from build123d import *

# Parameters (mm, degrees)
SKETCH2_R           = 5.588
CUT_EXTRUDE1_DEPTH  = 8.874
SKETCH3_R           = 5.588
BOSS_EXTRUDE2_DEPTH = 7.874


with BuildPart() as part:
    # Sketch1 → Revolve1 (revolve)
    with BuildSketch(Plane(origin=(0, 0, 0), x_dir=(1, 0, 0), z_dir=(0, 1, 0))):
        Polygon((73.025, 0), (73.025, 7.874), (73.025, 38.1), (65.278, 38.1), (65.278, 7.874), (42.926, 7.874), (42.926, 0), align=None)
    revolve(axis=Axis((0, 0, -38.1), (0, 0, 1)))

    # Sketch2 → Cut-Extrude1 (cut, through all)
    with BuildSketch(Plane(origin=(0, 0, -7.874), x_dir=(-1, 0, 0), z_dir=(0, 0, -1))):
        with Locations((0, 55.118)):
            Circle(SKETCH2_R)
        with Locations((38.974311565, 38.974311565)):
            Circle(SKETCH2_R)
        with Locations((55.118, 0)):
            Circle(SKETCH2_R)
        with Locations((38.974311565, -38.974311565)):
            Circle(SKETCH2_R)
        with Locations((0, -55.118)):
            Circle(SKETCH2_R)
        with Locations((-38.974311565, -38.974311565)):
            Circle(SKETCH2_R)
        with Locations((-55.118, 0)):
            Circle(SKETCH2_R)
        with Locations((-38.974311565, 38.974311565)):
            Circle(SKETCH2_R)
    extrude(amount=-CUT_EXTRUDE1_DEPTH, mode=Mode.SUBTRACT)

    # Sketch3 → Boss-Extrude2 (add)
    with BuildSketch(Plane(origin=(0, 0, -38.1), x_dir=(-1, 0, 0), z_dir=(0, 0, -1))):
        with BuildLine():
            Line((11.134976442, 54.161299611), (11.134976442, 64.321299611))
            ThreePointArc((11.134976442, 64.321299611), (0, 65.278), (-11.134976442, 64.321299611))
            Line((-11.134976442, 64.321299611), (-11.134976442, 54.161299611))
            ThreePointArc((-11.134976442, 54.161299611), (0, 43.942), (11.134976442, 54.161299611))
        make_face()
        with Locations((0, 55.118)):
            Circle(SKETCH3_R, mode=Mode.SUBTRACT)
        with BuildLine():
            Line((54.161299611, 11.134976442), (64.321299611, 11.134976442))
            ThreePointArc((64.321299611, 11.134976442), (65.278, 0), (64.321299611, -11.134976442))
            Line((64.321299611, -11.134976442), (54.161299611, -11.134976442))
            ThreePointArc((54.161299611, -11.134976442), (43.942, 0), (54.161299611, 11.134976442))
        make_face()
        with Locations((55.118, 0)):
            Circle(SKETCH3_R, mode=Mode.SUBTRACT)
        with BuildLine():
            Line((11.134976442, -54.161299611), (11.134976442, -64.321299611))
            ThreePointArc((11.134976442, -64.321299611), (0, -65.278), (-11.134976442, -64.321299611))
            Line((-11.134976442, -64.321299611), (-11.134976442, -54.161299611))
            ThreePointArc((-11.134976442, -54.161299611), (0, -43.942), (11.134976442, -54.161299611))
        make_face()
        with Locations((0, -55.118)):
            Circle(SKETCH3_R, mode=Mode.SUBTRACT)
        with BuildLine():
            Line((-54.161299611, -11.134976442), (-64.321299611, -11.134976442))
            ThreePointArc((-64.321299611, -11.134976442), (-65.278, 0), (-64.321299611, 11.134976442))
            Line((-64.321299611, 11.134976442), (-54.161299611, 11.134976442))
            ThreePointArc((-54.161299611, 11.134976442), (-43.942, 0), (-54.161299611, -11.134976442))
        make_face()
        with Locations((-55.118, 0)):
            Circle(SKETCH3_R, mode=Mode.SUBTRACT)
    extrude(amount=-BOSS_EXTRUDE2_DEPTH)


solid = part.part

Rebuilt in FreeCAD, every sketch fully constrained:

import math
import FreeCAD as App
import Part
import Sketcher

V = App.Vector
Q = App.Units.Quantity


def add_polygon(sketch, points):
    """Adds a closed chain of lines whose ends are joined by coincident constraints."""
    first, n = sketch.GeometryCount, len(points)
    for a, b in zip(points, points[1:] + points[:1]):
        sketch.addGeometry(Part.LineSegment(App.Vector(*a, 0), App.Vector(*b, 0)), False)
    for i in range(n):
        sketch.addConstraint(Sketcher.Constraint("Coincident", first + i, 2, first + (i + 1) % n, 1))

doc = App.newDocument("Part")
body = doc.addObject("PartDesign::Body", "Body")

sketch1 = body.newObject("Sketcher::SketchObject", "Sketch")
sketch1.AttachmentSupport = (doc.getObject("XZ_Plane"), [""])
sketch1.MapMode = "FlatFace"
add_polygon(sketch1, [(73, 0), (73, -38), (65, -38), (65, -8), (43, -8), (43, 0)])
sketch1.addConstraint([
    Sketcher.Constraint("Vertical", 0),
    Sketcher.Constraint("Horizontal", 1),
    Sketcher.Constraint("Vertical", 2),
    Sketcher.Constraint("Horizontal", 3),
    Sketcher.Constraint("Vertical", 4),
    Sketcher.Constraint("Horizontal", 5),
    Sketcher.Constraint("PointOnObject", 4, 2, -1),
    Sketcher.Constraint("DistanceY", 0, 2, 0, 1, Q("1.5 in")),
    Sketcher.Constraint("DistanceX", 3, 2, 3, 1, Q("0.88 in")),
    Sketcher.Constraint("DistanceY", 2, 1, 2, 2, Q("1.19 in")),
    Sketcher.Constraint("DistanceX", 1, 2, 1, 1, Q("0.305 in")),
    Sketcher.Constraint("DistanceX", -1, 1, 1, 2, Q("2.57 in")),
])
revolution = body.newObject("PartDesign::Revolution", "Revolution")
revolution.Profile = sketch1
revolution.ReferenceAxis = (sketch1, ["V_Axis"])
revolution.Angle = 360

sketch2 = body.newObject("Sketcher::SketchObject", "Sketch001")
sketch2.AttachmentSupport = (doc.getObject("XY_Plane"), [""])
sketch2.MapMode = "FlatFace"
sketch2.AttachmentOffset = App.Placement(V(0, 0, -0.31 * 25.4), App.Rotation())
sketch2.addGeometry([
    Part.Circle(V(0, 55, 0), V(0, 0, 1), 6),
    Part.Circle(V(-39, 39, 0), V(0, 0, 1), 6),
    Part.Circle(V(-55, 0, 0), V(0, 0, 1), 6),
    Part.Circle(V(-39, -39, 0), V(0, 0, 1), 6),
    Part.Circle(V(0, -55, 0), V(0, 0, 1), 6),
    Part.Circle(V(39, -39, 0), V(0, 0, 1), 6),
    Part.Circle(V(55, 0, 0), V(0, 0, 1), 6),
    Part.Circle(V(39, 39, 0), V(0, 0, 1), 6),
], False)
sketch2.addConstraint([
    Sketcher.Constraint("Equal", 0, 1),
    Sketcher.Constraint("Equal", 1, 2),
    Sketcher.Constraint("Equal", 2, 3),
    Sketcher.Constraint("Equal", 3, 4),
    Sketcher.Constraint("Equal", 4, 5),
    Sketcher.Constraint("Equal", 5, 6),
    Sketcher.Constraint("Equal", 6, 7),
    Sketcher.Constraint("Symmetric", 0, 3, 4, 3, -1, 1),
    Sketcher.Constraint("Symmetric", 1, 3, 5, 3, -1, 1),
    Sketcher.Constraint("Symmetric", 2, 3, 6, 3, -1, 1),
    Sketcher.Constraint("Symmetric", 3, 3, 7, 3, -1, 1),
    Sketcher.Constraint("Symmetric", 3, 3, 5, 3, -2),
    Sketcher.Constraint("PointOnObject", 0, 3, -2),
    Sketcher.Constraint("PointOnObject", 2, 3, -1),
    Sketcher.Constraint("Diameter", 0, Q("0.44 in")),
    Sketcher.Constraint("DistanceY", -1, 1, 0, 3, Q("2.17 in")),
    Sketcher.Constraint("DistanceX", 2, 3, -1, 1, Q("2.17 in")),
    Sketcher.Constraint("DistanceX", 1, 3, -1, 1, Q("38.974312 mm")),
    Sketcher.Constraint("DistanceY", -1, 1, 1, 3, Q("38.974312 mm")),
])
pocket1 = body.newObject("PartDesign::Pocket", "Pocket")
pocket1.Profile = sketch2
pocket1.Type = "ThroughAll"
pocket1.Reversed = True

sketch3 = body.newObject("Sketcher::SketchObject", "Sketch002")
sketch3.AttachmentSupport = (doc.getObject("XY_Plane"), [""])
sketch3.MapMode = "FlatFace"
sketch3.AttachmentOffset = App.Placement(V(0, 0, -1.5 * 25.4), App.Rotation())
sketch3.addGeometry([
    Part.LineSegment(V(-11, 54, 0), V(-11, 64, 0)),
    Part.ArcOfCircle(Part.Circle(V(0, 0, 0), V(0, 0, 1), 65), math.radians(80.18), math.radians(99.82)),
    Part.LineSegment(V(11, 64, 0), V(11, 54, 0)),
    Part.ArcOfCircle(Part.Circle(V(0, 55, 0), V(0, 0, 1), 11), math.radians(-175), math.radians(-5)),
    Part.Circle(V(0, 55, 0), V(0, 0, 1), 6),
    Part.LineSegment(V(-64, 11, 0), V(-54, 11, 0)),
    Part.ArcOfCircle(Part.Circle(V(-55, 0, 0), V(0, 0, 1), 11), math.radians(-85), math.radians(85)),
    Part.LineSegment(V(-54, -11, 0), V(-64, -11, 0)),
    Part.ArcOfCircle(Part.Circle(V(0, 0, 0), V(0, 0, 1), 65), math.radians(170.18), math.radians(189.82)),
    Part.Circle(V(-55, 0, 0), V(0, 0, 1), 6),
    Part.LineSegment(V(-11, -64, 0), V(-11, -54, 0)),
    Part.ArcOfCircle(Part.Circle(V(0, -55, 0), V(0, 0, 1), 11), math.radians(5), math.radians(175)),
    Part.LineSegment(V(11, -54, 0), V(11, -64, 0)),
    Part.ArcOfCircle(Part.Circle(V(0, 0, 0), V(0, 0, 1), 65), math.radians(-99.82), math.radians(-80.18)),
    Part.Circle(V(0, -55, 0), V(0, 0, 1), 6),
    Part.LineSegment(V(64, -11, 0), V(54, -11, 0)),
    Part.ArcOfCircle(Part.Circle(V(55, 0, 0), V(0, 0, 1), 11), math.radians(95), math.radians(265)),
    Part.LineSegment(V(54, 11, 0), V(64, 11, 0)),
    Part.ArcOfCircle(Part.Circle(V(0, 0, 0), V(0, 0, 1), 65), math.radians(-9.82), math.radians(9.82)),
    Part.Circle(V(55, 0, 0), V(0, 0, 1), 6),
], False)
sketch3.addConstraint([
    Sketcher.Constraint("Coincident", 0, 2, 1, 2),
    Sketcher.Constraint("Coincident", 1, 1, 2, 1),
    Sketcher.Constraint("Coincident", 2, 2, 3, 2),
    Sketcher.Constraint("Coincident", 3, 1, 0, 1),
    Sketcher.Constraint("Coincident", 5, 2, 6, 2),
    Sketcher.Constraint("Coincident", 6, 1, 7, 1),
    Sketcher.Constraint("Coincident", 7, 2, 8, 2),
    Sketcher.Constraint("Coincident", 8, 1, 5, 1),
    Sketcher.Constraint("Coincident", 10, 2, 11, 2),
    Sketcher.Constraint("Coincident", 11, 1, 12, 1),
    Sketcher.Constraint("Coincident", 12, 2, 13, 2),
    Sketcher.Constraint("Coincident", 13, 1, 10, 1),
    Sketcher.Constraint("Coincident", 15, 2, 16, 2),
    Sketcher.Constraint("Coincident", 16, 1, 17, 1),
    Sketcher.Constraint("Coincident", 17, 2, 18, 2),
    Sketcher.Constraint("Coincident", 18, 1, 15, 1),
    Sketcher.Constraint("Vertical", 0),
    Sketcher.Constraint("Vertical", 2),
    Sketcher.Constraint("Horizontal", 5),
    Sketcher.Constraint("Horizontal", 7),
    Sketcher.Constraint("Vertical", 10),
    Sketcher.Constraint("Vertical", 12),
    Sketcher.Constraint("Horizontal", 15),
    Sketcher.Constraint("Horizontal", 17),
    Sketcher.Constraint("Coincident", 1, 3, -1, 1),
    Sketcher.Constraint("Coincident", 8, 3, -1, 1),
    Sketcher.Constraint("Coincident", 13, 3, -1, 1),
    Sketcher.Constraint("Coincident", 18, 3, -1, 1),
    Sketcher.Constraint("Coincident", 4, 3, 3, 3),
    Sketcher.Constraint("Coincident", 9, 3, 6, 3),
    Sketcher.Constraint("Coincident", 14, 3, 11, 3),
    Sketcher.Constraint("Coincident", 19, 3, 16, 3),
    Sketcher.Constraint("Equal", 3, 6),
    Sketcher.Constraint("Equal", 1, 8),
    Sketcher.Constraint("Equal", 4, 9),
    Sketcher.Constraint("Equal", 6, 11),
    Sketcher.Constraint("Equal", 8, 13),
    Sketcher.Constraint("Equal", 9, 14),
    Sketcher.Constraint("Equal", 11, 16),
    Sketcher.Constraint("Equal", 13, 18),
    Sketcher.Constraint("Equal", 14, 19),
    Sketcher.Constraint("Symmetric", 3, 3, 11, 3, -1, 1),
    Sketcher.Constraint("Symmetric", 6, 3, 16, 3, -1, 1),
    Sketcher.Constraint("Symmetric", 2, 2, 3, 1, -2),
    Sketcher.Constraint("Symmetric", 6, 1, 15, 2, -2),
    Sketcher.Constraint("Horizontal", 10, 2, 11, 1),
    Sketcher.Constraint("Vertical", 5, 2, 6, 1),
    Sketcher.Constraint("Vertical", 3, 1, 10, 2),
    Sketcher.Constraint("Vertical", 15, 2, 16, 1),
    Sketcher.Constraint("Equal", 17, 0),
    Sketcher.Constraint("Diameter", 4, Q("0.44 in")),
    Sketcher.Constraint("Radius", 1, Q("2.57 in")),
    Sketcher.Constraint("Radius", 3, Q("0.44 in")),
    Sketcher.Constraint("DistanceX", 5, 1, 5, 2, Q("0.4 in")),
    Sketcher.Constraint("DistanceY", -1, 1, 3, 3, Q("2.17 in")),
    Sketcher.Constraint("DistanceX", 6, 3, -1, 1, Q("2.17 in")),
])
pad1 = body.newObject("PartDesign::Pad", "Pad")
pad1.Profile = sketch3
pad1.Length = Q("0.31 in")

doc.recompute()
